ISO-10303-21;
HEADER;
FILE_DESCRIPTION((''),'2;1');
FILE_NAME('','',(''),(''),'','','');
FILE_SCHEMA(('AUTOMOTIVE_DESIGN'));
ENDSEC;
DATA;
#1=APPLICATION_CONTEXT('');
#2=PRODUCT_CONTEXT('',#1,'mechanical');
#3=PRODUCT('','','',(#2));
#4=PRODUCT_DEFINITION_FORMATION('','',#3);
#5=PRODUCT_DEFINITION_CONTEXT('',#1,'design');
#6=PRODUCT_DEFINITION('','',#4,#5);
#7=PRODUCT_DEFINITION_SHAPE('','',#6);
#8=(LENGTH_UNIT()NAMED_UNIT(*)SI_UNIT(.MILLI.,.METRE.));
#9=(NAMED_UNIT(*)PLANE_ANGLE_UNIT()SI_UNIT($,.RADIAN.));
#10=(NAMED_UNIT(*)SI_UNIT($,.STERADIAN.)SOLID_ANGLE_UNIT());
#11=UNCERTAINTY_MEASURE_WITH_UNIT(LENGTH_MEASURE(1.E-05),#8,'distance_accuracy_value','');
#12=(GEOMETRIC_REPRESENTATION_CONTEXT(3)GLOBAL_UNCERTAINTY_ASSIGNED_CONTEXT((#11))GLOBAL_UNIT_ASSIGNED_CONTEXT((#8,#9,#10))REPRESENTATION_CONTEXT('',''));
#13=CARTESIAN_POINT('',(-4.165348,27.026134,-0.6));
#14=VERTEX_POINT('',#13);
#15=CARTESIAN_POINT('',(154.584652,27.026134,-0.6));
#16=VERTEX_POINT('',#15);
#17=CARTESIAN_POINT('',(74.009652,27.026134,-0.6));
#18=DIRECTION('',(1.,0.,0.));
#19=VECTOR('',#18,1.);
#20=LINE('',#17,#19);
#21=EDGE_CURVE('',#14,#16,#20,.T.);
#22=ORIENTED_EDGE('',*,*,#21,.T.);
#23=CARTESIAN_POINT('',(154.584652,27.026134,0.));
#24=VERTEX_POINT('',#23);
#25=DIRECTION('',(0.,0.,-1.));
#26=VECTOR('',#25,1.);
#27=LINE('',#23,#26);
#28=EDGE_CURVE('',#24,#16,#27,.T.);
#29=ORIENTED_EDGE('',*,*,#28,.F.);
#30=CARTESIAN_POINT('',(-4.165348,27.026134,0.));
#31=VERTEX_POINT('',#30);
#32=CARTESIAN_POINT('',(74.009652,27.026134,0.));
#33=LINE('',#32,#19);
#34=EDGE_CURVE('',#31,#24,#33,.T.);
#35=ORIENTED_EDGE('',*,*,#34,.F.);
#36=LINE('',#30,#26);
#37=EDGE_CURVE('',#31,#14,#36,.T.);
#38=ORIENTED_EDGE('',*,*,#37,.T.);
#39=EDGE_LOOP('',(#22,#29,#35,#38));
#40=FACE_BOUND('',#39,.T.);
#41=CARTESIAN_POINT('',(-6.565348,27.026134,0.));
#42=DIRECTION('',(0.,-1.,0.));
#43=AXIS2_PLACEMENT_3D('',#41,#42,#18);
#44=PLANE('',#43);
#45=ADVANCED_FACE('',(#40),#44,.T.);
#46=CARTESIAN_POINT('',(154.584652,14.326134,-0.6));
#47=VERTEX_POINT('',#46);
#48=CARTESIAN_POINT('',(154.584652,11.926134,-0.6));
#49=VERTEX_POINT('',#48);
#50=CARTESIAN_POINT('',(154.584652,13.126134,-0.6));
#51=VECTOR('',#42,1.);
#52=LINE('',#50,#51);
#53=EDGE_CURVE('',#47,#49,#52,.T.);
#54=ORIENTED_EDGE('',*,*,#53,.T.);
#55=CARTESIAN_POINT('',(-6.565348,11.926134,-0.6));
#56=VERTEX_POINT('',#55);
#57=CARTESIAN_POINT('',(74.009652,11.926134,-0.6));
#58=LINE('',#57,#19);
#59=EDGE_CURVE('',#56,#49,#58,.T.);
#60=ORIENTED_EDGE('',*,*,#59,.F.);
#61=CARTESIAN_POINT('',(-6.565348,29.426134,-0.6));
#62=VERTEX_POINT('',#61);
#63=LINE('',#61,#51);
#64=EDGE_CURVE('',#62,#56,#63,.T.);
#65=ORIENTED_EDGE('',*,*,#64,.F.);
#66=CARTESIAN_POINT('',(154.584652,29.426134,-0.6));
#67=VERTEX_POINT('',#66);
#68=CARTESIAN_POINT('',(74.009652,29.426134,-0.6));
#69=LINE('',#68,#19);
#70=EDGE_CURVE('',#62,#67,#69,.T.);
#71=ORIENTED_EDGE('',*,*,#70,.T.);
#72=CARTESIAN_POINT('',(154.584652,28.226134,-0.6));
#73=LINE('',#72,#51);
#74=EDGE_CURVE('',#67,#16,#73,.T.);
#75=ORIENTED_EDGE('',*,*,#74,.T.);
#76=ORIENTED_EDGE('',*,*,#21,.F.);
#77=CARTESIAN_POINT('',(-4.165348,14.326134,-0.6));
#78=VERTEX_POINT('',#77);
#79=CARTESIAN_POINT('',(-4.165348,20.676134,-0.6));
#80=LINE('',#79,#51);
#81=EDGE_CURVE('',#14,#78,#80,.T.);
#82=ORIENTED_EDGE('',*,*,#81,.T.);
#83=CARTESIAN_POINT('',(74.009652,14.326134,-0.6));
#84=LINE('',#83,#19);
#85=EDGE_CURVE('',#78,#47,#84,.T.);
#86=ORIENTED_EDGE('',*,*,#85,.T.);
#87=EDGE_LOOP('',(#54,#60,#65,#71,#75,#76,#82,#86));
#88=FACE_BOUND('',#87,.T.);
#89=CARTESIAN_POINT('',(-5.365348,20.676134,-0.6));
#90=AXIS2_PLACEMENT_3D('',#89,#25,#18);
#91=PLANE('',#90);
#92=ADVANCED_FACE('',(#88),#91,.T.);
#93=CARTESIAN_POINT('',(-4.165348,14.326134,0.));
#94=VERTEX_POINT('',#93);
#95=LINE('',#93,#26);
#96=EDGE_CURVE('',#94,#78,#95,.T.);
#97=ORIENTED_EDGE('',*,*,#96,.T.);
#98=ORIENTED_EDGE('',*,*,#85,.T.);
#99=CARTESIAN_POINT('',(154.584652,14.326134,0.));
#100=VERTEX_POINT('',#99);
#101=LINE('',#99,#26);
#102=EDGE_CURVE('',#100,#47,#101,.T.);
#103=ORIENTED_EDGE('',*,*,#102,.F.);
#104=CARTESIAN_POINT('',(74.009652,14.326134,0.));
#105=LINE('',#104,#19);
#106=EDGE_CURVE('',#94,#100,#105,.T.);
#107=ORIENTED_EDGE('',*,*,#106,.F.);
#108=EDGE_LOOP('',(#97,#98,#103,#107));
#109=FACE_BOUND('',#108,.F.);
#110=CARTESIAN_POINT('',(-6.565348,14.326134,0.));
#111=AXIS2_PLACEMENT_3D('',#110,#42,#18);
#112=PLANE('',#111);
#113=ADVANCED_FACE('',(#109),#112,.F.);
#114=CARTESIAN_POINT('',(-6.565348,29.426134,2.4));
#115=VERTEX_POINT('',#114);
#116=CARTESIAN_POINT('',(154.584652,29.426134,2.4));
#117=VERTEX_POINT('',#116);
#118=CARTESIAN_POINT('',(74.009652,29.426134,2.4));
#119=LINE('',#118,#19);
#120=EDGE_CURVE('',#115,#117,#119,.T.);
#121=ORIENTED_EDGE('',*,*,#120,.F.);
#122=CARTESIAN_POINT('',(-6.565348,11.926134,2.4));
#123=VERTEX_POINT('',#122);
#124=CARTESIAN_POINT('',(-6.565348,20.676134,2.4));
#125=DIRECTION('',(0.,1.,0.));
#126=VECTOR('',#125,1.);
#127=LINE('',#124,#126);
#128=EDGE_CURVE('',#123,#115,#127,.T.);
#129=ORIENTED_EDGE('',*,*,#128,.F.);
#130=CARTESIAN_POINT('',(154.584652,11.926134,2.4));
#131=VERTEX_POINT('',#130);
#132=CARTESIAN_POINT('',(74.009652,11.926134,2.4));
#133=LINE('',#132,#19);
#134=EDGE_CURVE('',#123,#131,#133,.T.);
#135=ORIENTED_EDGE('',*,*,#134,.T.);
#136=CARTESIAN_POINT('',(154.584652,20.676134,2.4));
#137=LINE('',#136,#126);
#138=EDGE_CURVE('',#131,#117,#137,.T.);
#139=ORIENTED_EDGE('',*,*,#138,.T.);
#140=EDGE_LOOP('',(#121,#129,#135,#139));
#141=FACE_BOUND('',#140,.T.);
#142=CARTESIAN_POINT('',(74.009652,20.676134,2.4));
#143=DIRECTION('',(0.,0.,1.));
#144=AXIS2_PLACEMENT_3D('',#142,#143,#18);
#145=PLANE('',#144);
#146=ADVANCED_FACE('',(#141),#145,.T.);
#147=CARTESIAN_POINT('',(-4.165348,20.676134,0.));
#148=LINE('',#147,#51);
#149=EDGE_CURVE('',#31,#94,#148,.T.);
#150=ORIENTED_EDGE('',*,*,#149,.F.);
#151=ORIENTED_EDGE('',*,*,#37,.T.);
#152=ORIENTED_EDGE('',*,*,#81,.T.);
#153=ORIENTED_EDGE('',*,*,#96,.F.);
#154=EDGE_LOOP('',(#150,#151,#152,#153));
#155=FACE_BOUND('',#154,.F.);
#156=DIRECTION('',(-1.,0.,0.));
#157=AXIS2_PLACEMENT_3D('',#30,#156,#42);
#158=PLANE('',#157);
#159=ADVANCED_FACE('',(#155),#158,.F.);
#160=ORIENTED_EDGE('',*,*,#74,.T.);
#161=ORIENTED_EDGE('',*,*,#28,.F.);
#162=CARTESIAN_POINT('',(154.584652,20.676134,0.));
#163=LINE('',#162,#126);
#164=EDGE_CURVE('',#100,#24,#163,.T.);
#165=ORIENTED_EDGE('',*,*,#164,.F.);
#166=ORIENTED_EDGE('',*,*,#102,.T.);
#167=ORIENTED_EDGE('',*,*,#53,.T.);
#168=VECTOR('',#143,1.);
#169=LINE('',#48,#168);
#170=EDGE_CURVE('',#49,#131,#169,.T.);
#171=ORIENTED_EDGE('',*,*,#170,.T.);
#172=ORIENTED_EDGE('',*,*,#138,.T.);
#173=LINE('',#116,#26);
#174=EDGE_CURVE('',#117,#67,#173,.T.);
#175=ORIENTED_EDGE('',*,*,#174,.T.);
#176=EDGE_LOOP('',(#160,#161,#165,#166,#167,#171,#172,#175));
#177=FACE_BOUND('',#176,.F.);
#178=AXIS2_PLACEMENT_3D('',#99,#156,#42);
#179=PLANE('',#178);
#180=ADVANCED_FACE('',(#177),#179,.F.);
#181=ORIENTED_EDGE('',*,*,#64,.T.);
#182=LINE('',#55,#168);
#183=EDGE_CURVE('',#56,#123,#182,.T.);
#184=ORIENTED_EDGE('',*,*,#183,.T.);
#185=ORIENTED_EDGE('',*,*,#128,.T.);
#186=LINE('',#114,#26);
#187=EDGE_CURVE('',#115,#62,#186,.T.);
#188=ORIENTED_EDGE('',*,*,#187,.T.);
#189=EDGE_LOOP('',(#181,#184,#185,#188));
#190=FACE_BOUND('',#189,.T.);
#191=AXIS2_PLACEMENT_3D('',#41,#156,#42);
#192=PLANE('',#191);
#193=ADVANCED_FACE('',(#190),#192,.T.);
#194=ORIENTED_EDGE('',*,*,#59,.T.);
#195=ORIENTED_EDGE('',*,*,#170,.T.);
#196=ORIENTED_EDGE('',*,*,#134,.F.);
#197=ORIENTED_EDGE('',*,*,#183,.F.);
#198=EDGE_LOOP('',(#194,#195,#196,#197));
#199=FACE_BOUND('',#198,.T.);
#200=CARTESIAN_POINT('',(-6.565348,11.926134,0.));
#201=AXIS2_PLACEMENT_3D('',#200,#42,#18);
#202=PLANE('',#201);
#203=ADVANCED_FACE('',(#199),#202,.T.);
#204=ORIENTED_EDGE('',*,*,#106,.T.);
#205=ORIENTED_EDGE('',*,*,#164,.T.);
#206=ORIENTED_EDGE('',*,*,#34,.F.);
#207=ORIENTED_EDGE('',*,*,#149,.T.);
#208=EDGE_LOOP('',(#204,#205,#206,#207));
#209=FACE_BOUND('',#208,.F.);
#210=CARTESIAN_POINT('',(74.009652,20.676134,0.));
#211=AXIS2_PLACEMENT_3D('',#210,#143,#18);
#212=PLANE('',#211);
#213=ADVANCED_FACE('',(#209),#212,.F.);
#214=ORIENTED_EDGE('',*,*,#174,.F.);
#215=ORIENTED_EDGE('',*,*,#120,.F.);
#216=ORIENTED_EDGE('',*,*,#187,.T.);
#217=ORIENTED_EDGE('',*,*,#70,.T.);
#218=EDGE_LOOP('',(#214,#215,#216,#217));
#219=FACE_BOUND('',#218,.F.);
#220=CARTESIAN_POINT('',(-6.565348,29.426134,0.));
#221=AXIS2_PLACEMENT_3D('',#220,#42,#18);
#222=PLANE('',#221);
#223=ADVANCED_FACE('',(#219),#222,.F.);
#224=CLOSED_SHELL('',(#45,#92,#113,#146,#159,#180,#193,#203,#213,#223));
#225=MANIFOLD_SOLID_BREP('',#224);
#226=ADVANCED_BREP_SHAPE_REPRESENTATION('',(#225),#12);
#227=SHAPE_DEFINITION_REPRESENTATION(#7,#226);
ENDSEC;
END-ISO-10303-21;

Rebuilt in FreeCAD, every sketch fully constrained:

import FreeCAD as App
import Part
import Sketcher
from FreeCAD import Vector
Q = App.Units.Quantity


def add_polygon(sketch, points):
    """Adds a closed chain of lines whose ends are joined by coincident constraints."""
    first, n = sketch.GeometryCount, len(points)
    for a, b in zip(points, points[1:] + points[:1]):
        sketch.addGeometry(Part.LineSegment(App.Vector(*a, 0), App.Vector(*b, 0)), False)
    for i in range(n):
        sketch.addConstraint(Sketcher.Constraint("Coincident", first + i, 2, first + (i + 1) % n, 1))

doc = App.newDocument("Part")
body = doc.addObject("PartDesign::Body", "Body")

# Sketch on XY plane
sketch1 = body.newObject("Sketcher::SketchObject", "Sketch")
sketch1.AttachmentSupport = (doc.getObject("XY_Plane"), [""])
sketch1.MapMode = "FlatFace"
add_polygon(sketch1, [(-6.565348, 29.426134), (-6.565348, 11.926134), (154.584652, 11.926134), (154.584652, 29.426134)])  # lines 0-3
sketch1.addConstraint(Sketcher.Constraint("Vertical", 0))
sketch1.addConstraint(Sketcher.Constraint("Horizontal", 1))
sketch1.addConstraint(Sketcher.Constraint("Vertical", 2))
sketch1.addConstraint(Sketcher.Constraint("Horizontal", 3))
sketch1.addConstraint(Sketcher.Constraint("DistanceY", 0, 2, 0, 1, Q("17.5 mm")))
sketch1.addConstraint(Sketcher.Constraint("DistanceX", 1, 1, 1, 2, Q("161.15 mm")))
sketch1.addConstraint(Sketcher.Constraint("DistanceX", 0, 2, -1, 1, Q("6.565348 mm")))
sketch1.addConstraint(Sketcher.Constraint("DistanceY", -1, 1, 0, 2, Q("11.926134 mm")))
pad1 = body.newObject("PartDesign::Pad", "Pad")
pad1.Profile = sketch1
pad1.Length = 2.4

# Sketch on XY plane
sketch2 = body.newObject("Sketcher::SketchObject", "Sketch001")
sketch2.AttachmentSupport = (doc.getObject("XY_Plane"), [""])
sketch2.MapMode = "FlatFace"
add_polygon(sketch2, [(-6.565348, 27.026134), (-6.565348, 29.426134), (154.584652, 29.426134), (154.584652, 27.026134)])  # lines 0-3
sketch2.addConstraint(Sketcher.Constraint("Vertical", 0))
sketch2.addConstraint(Sketcher.Constraint("Horizontal", 1))
sketch2.addConstraint(Sketcher.Constraint("Vertical", 2))
sketch2.addConstraint(Sketcher.Constraint("Horizontal", 3))
sketch2.addConstraint(Sketcher.Constraint("DistanceY", 0, 1, 0, 2, Q("2.4 mm")))
sketch2.addConstraint(Sketcher.Constraint("DistanceX", 1, 1, 1, 2, Q("161.15 mm")))
sketch2.addConstraint(Sketcher.Constraint("DistanceX", 0, 2, -1, 1, Q("6.565348 mm")))
sketch2.addConstraint(Sketcher.Constraint("DistanceY", -1, 1, 0, 2, Q("29.426134 mm")))
pad2 = body.newObject("PartDesign::Pad", "Pad001")
pad2.Profile = sketch2
pad2.Length = 0.6
pad2.Reversed = True

# Sketch on XY plane
sketch3 = body.newObject("Sketcher::SketchObject", "Sketch002")
sketch3.AttachmentSupport = (doc.getObject("XY_Plane"), [""])
sketch3.MapMode = "FlatFace"
add_polygon(sketch3, [(-6.565348, 11.926134), (-6.565348, 14.326134), (154.584652, 14.326134), (154.584652, 11.926134)])  # lines 0-3
sketch3.addConstraint(Sketcher.Constraint("Vertical", 0))
sketch3.addConstraint(Sketcher.Constraint("Horizontal", 1))
sketch3.addConstraint(Sketcher.Constraint("Vertical", 2))
sketch3.addConstraint(Sketcher.Constraint("Horizontal", 3))
sketch3.addConstraint(Sketcher.Constraint("DistanceY", 0, 1, 0, 2, Q("2.4 mm")))
sketch3.addConstraint(Sketcher.Constraint("DistanceX", 1, 1, 1, 2, Q("161.15 mm")))
sketch3.addConstraint(Sketcher.Constraint("DistanceX", 0, 2, -1, 1, Q("6.565348 mm")))
sketch3.addConstraint(Sketcher.Constraint("DistanceY", -1, 1, 0, 2, Q("14.326134 mm")))
pad3 = body.newObject("PartDesign::Pad", "Pad002")
pad3.Profile = sketch3
pad3.Length = 0.6
pad3.Reversed = True

# Sketch on XY plane
sketch4 = body.newObject("Sketcher::SketchObject", "Sketch003")
sketch4.AttachmentSupport = (doc.getObject("XY_Plane"), [""])
sketch4.MapMode = "FlatFace"
add_polygon(sketch4, [(-6.565348, 14.326134), (-6.565348, 27.026134), (-4.165348, 27.026134), (-4.165348, 14.326134)])  # lines 0-3
sketch4.addConstraint(Sketcher.Constraint("Vertical", 0))
sketch4.addConstraint(Sketcher.Constraint("Horizontal", 1))
sketch4.addConstraint(Sketcher.Constraint("Vertical", 2))
sketch4.addConstraint(Sketcher.Constraint("Horizontal", 3))
sketch4.addConstraint(Sketcher.Constraint("DistanceX", 1, 1, 1, 2, Q("2.4 mm")))
sketch4.addConstraint(Sketcher.Constraint("DistanceY", 0, 1, 0, 2, Q("12.7 mm")))
sketch4.addConstraint(Sketcher.Constraint("DistanceX", 0, 2, -1, 1, Q("6.565348 mm")))
sketch4.addConstraint(Sketcher.Constraint("DistanceY", -1, 1, 0, 2, Q("27.026134 mm")))
pad4 = body.newObject("PartDesign::Pad", "Pad003")
pad4.Profile = sketch4
pad4.Length = 0.6
pad4.Reversed = True

doc.recompute()
